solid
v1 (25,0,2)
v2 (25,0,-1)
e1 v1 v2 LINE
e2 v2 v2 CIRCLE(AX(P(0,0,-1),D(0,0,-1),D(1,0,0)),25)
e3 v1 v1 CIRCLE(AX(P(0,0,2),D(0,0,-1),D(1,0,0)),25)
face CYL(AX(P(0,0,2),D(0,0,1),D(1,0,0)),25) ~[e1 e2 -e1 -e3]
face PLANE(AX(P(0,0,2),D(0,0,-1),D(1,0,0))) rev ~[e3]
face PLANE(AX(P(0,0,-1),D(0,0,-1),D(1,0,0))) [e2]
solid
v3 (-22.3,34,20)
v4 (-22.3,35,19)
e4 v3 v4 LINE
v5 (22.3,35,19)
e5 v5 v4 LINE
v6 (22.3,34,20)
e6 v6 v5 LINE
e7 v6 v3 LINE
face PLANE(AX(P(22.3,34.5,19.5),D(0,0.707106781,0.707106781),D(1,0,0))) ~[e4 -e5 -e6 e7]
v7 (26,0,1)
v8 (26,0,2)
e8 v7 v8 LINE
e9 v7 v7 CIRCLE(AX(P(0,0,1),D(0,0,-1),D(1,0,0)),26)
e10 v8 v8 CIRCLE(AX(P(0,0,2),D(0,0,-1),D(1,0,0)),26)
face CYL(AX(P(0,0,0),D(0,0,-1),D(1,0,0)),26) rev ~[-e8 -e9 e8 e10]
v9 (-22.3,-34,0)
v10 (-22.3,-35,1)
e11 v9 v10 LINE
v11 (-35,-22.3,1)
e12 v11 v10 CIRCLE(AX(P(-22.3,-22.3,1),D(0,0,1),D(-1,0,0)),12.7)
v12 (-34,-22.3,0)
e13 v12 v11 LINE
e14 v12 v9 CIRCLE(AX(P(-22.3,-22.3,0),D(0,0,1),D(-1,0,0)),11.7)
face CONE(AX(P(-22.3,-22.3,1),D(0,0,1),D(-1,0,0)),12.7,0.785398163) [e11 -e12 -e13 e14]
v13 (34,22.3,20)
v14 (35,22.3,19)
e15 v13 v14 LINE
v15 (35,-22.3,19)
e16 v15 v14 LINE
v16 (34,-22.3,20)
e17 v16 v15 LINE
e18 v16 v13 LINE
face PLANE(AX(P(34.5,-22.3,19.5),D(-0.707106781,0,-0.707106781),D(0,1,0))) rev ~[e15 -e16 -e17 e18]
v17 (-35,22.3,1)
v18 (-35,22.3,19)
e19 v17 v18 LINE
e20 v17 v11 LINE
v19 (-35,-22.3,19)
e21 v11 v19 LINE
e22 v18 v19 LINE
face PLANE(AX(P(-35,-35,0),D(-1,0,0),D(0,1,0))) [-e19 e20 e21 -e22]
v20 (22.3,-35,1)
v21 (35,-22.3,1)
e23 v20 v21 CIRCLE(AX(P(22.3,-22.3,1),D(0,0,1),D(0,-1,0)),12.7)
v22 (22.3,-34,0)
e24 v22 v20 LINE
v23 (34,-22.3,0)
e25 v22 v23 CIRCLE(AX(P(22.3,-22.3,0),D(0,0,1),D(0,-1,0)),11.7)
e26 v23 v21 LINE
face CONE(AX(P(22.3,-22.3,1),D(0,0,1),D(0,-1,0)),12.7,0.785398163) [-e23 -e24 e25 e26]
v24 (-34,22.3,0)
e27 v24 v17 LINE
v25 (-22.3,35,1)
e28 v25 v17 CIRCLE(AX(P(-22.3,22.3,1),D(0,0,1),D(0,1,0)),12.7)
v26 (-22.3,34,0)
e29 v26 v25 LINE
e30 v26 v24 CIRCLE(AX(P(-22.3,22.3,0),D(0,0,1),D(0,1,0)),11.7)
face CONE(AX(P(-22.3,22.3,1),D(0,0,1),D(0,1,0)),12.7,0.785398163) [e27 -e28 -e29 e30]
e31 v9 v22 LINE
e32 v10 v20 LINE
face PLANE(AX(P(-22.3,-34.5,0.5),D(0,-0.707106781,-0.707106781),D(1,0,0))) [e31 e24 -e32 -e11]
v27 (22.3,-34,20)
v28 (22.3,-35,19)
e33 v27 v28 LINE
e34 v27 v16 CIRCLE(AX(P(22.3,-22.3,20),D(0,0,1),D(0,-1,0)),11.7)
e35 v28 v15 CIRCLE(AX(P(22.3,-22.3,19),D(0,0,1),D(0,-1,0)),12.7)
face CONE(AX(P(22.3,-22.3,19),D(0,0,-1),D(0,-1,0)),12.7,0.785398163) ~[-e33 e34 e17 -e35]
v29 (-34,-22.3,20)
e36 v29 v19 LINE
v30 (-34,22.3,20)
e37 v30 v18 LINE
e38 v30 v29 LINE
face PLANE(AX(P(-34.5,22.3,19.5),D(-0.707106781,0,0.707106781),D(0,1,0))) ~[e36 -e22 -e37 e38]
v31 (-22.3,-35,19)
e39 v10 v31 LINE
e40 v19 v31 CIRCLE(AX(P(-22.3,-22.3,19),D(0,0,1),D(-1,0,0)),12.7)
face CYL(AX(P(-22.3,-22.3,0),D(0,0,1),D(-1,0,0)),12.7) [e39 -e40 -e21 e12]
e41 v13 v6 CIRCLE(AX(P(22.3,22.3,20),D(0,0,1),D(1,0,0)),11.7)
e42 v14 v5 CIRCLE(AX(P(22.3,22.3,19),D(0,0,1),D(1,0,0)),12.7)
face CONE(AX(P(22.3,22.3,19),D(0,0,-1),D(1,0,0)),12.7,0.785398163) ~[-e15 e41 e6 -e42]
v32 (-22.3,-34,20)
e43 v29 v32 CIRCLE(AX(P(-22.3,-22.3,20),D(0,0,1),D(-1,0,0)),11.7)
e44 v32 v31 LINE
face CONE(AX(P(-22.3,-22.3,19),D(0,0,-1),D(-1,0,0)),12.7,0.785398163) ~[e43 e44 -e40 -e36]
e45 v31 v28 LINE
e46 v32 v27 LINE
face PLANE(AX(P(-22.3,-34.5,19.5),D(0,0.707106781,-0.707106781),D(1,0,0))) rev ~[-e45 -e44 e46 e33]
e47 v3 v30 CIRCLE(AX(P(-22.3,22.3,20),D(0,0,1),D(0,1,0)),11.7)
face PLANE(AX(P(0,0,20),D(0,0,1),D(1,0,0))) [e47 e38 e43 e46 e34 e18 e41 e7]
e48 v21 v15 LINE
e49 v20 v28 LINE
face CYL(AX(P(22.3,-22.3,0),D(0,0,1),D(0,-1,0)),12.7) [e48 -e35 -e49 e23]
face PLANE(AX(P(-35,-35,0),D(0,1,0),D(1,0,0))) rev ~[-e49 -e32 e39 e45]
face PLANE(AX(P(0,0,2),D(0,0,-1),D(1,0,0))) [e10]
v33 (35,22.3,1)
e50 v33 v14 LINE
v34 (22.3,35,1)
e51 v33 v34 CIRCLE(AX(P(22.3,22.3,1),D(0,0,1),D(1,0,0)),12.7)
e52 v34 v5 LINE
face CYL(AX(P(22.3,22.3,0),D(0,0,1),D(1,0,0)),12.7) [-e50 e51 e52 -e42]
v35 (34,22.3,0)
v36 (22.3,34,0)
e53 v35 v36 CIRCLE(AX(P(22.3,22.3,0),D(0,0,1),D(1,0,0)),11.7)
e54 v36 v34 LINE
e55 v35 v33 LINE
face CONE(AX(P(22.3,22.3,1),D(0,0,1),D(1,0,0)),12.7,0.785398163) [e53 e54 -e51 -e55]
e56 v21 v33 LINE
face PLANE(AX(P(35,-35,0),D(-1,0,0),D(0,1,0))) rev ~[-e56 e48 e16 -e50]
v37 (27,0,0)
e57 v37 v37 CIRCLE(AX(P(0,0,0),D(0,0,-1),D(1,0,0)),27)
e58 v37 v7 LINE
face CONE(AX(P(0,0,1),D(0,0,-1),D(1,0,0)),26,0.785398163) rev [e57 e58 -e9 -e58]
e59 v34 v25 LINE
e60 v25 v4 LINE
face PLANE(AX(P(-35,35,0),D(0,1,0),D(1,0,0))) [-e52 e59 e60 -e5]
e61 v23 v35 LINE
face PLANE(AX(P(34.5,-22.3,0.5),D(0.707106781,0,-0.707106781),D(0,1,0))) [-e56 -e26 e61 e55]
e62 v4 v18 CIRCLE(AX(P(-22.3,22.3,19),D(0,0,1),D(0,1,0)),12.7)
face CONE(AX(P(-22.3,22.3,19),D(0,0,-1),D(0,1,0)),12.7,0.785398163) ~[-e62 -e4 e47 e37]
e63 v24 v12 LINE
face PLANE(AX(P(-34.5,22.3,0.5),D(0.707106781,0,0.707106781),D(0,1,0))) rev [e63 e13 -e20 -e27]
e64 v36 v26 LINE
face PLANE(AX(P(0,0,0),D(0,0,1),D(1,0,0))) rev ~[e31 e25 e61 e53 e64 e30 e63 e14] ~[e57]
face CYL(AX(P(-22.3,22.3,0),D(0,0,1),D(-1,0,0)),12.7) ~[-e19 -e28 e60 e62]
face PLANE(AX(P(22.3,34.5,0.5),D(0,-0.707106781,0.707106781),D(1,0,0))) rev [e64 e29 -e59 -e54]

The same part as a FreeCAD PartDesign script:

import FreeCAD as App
import Part
import Sketcher
from FreeCAD import Vector
Q = App.Units.Quantity


def edges_at(feature, points):
    """Names of the edges that pass closest to the given points."""
    edges = feature.Shape.Edges
    near = lambda p: min(range(len(edges)), key=lambda i: edges[i].distToShape(Part.Vertex(*p))[0])
    return sorted({f"Edge{near(p) + 1}" for p in points})

doc = App.newDocument("Part")
body = doc.addObject("PartDesign::Body", "Body")

# Sketch on XY plane
sketch1 = body.newObject("Sketcher::SketchObject", "Sketch")
sketch1.AttachmentSupport = (doc.getObject("XY_Plane"), [""])
sketch1.MapMode = "FlatFace"
sketch1.addGeometry(Part.LineSegment(Vector(-35, 35, 0), Vector(-35, -35, 0)), False)
sketch1.addGeometry(Part.LineSegment(Vector(-35, -35, 0), Vector(35, -35, 0)), False)
sketch1.addGeometry(Part.LineSegment(Vector(35, -35, 0), Vector(35, 35, 0)), False)
sketch1.addGeometry(Part.LineSegment(Vector(35, 35, 0), Vector(-35, 35, 0)), False)
sketch1.addConstraint(Sketcher.Constraint("Coincident", 0, 2, 1, 1))
sketch1.addConstraint(Sketcher.Constraint("Coincident", 1, 2, 2, 1))
sketch1.addConstraint(Sketcher.Constraint("Coincident", 2, 2, 3, 1))
sketch1.addConstraint(Sketcher.Constraint("Coincident", 3, 2, 0, 1))
sketch1.addConstraint(Sketcher.Constraint("Vertical", 0))
sketch1.addConstraint(Sketcher.Constraint("Horizontal", 1))
sketch1.addConstraint(Sketcher.Constraint("Vertical", 2))
sketch1.addConstraint(Sketcher.Constraint("Horizontal", 3))
sketch1.addConstraint(Sketcher.Constraint("Symmetric", 0, 2, 2, 2, -1, 1))
sketch1.addConstraint(Sketcher.Constraint("Equal", 3, 0))
sketch1.addConstraint(Sketcher.Constraint("DistanceX", 1, 1, 1, 2, Q("70 mm")))
pad1 = body.newObject("PartDesign::Pad", "Pad")
pad1.Profile = sketch1
pad1.Length = 20
doc.recompute()

fillet = body.newObject("PartDesign::Fillet", "Fillet")
fillet.Base = (pad1, edges_at(pad1, [
    (35, -35, 10),
    (-35, -35, 10),
    (35, 35, 10),
    (-35, 35, 10),
]))
fillet.Radius = 12.7

# Sketch on XY plane
sketch2 = body.newObject("Sketcher::SketchObject", "Sketch001")
sketch2.AttachmentSupport = (doc.getObject("XY_Plane"), [""])
sketch2.MapMode = "FlatFace"
sketch2.addGeometry(Part.Circle(Vector(0, 0, 0), Vector(0, 0, 1), 26), False)
sketch2.addConstraint(Sketcher.Constraint("Coincident", 0, 3, -1, 1))
sketch2.addConstraint(Sketcher.Constraint("Diameter", 0, Q("52 mm")))
pocket1 = body.newObject("PartDesign::Pocket", "Pocket")
pocket1.Profile = sketch2
pocket1.Length = 2
pocket1.Reversed = True
doc.recompute()

chamfer = body.newObject("PartDesign::Chamfer", "Chamfer")
chamfer.Base = (pocket1, edges_at(pocket1, [
    (0, -35, 20),
    (-31.28, -31.28, 20),
    (31.28, -31.28, 20),
    (-35, 0, 20),
    (35, 0, 20),
    (-31.28, 31.28, 20),
    (31.28, 31.28, 20),
    (0, 35, 20),
    (0, -35, 0),
    (-31.28, -31.28, 0),
    (31.28, -31.28, 0),
    (-35, 0, 0),
    (35, 0, 0),
    (-31.28, 31.28, 0),
    (31.28, 31.28, 0),
    (0, 35, 0),
    (-26, 0, 0),
]))
chamfer.Size = 1
body2 = doc.addObject("PartDesign::Body", "Body001")

# Sketch on XY plane
sketch3 = body2.newObject("Sketcher::SketchObject", "Sketch002")
sketch3.AttachmentSupport = (doc.getObject("XY_Plane001"), [""])
sketch3.MapMode = "FlatFace"
sketch3.AttachmentOffset = App.Placement(Vector(0, 0, 2), App.Rotation())
sketch3.addGeometry(Part.Circle(Vector(0, 0, 0), Vector(0, 0, 1), 25), False)
sketch3.addConstraint(Sketcher.Constraint("Coincident", 0, 3, -1, 1))
sketch3.addConstraint(Sketcher.Constraint("Diameter", 0, Q("50 mm")))
pad2 = body2.newObject("PartDesign::Pad", "Pad001")
pad2.Profile = sketch3
pad2.Length = 3
pad2.Reversed = True

doc.recompute()
